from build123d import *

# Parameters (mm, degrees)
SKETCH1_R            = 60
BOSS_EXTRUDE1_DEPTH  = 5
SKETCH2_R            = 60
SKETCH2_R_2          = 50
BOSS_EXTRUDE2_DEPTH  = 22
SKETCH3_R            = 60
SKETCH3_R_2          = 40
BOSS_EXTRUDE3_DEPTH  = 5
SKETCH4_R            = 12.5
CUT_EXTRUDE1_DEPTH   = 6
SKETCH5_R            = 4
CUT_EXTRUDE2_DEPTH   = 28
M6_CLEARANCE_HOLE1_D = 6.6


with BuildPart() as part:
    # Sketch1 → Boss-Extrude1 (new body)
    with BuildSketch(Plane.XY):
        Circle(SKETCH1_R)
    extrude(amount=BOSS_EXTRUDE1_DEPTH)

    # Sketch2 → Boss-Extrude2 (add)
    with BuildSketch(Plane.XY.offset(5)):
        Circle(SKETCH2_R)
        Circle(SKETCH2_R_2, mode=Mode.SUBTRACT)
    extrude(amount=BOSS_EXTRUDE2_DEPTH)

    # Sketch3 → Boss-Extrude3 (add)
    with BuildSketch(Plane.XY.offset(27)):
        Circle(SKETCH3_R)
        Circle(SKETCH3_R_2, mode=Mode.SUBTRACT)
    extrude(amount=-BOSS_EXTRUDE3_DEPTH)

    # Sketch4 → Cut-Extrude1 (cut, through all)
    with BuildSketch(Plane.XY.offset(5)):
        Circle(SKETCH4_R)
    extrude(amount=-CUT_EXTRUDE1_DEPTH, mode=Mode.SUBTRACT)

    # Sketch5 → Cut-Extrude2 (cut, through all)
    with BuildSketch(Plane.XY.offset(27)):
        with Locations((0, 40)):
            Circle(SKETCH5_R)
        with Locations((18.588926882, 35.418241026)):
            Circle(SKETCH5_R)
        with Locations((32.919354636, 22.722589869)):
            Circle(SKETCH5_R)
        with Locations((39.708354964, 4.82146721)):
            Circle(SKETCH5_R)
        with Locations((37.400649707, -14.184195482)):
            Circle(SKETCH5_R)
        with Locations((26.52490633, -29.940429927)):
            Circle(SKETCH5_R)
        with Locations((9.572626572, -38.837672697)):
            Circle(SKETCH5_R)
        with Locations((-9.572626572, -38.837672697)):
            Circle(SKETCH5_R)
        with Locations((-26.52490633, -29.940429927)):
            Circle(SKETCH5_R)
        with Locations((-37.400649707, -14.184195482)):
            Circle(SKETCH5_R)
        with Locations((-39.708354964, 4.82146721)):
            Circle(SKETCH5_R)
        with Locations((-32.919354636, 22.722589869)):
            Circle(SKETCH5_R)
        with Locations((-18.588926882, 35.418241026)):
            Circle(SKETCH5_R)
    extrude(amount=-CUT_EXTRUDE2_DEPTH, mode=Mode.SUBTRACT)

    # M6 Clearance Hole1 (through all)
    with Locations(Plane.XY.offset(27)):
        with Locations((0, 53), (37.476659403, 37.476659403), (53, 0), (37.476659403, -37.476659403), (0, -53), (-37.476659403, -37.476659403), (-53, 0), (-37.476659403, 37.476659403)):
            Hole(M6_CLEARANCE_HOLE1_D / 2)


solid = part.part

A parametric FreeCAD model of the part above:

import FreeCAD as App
import Part
import Sketcher

V = App.Vector

doc = App.newDocument("Part")
body = doc.addObject("PartDesign::Body", "Body")

sketch1 = doc.addObject("Sketcher::SketchObject", "Sketch")
body.addObject(sketch1)
sketch1.AttachmentSupport = (doc.XY_Plane, [""])
sketch1.MapMode = "FlatFace"
sketch1.addGeometry(Part.Circle(V(0, 0, 0), V(0, 0, 1), 60), False)
sketch1.addConstraint([
    Sketcher.Constraint("Coincident", 0, 3, -1, 1),
    Sketcher.Constraint("Diameter", 0, 120.0),
])
pad1 = doc.addObject("PartDesign::Pad", "Pad")
body.addObject(pad1)
pad1.Profile = sketch1
pad1.Length = 5

sketch2 = doc.addObject("Sketcher::SketchObject", "Sketch001")
body.addObject(sketch2)
sketch2.AttachmentSupport = (doc.XY_Plane, [""])
sketch2.MapMode = "FlatFace"
sketch2.AttachmentOffset = App.Placement(V(0, 0, 5), App.Rotation())
sketch2.addGeometry([
    Part.Circle(V(0, 0, 0), V(0, 0, 1), 60),
    Part.Circle(V(0, 0, 0), V(0, 0, 1), 50),
], False)
sketch2.addConstraint([
    Sketcher.Constraint("Coincident", 0, 3, -1, 1),
    Sketcher.Constraint("Coincident", 1, 3, -1, 1),
    Sketcher.Constraint("Diameter", 0, 120.0),
    Sketcher.Constraint("Diameter", 1, 100.0),
])
pad2 = doc.addObject("PartDesign::Pad", "Pad001")
body.addObject(pad2)
pad2.Profile = sketch2
pad2.Length = 22

sketch3 = doc.addObject("Sketcher::SketchObject", "Sketch002")
body.addObject(sketch3)
sketch3.AttachmentSupport = (doc.XY_Plane, [""])
sketch3.MapMode = "FlatFace"
sketch3.AttachmentOffset = App.Placement(V(0, 0, 27), App.Rotation())
sketch3.addGeometry([
    Part.Circle(V(0, 0, 0), V(0, 0, 1), 60),
    Part.Circle(V(0, 0, 0), V(0, 0, 1), 40),
], False)
sketch3.addConstraint([
    Sketcher.Constraint("Coincident", 0, 3, -1, 1),
    Sketcher.Constraint("Coincident", 1, 3, -1, 1),
    Sketcher.Constraint("Diameter", 0, 120.0),
    Sketcher.Constraint("Diameter", 1, 80.0),
])
pad3 = doc.addObject("PartDesign::Pad", "Pad002")
body.addObject(pad3)
pad3.Profile = sketch3
pad3.Length = 5
pad3.Reversed = True

sketch4 = doc.addObject("Sketcher::SketchObject", "Sketch003")
body.addObject(sketch4)
sketch4.AttachmentSupport = (doc.XY_Plane, [""])
sketch4.MapMode = "FlatFace"
sketch4.AttachmentOffset = App.Placement(V(0, 0, 5), App.Rotation())
sketch4.addGeometry(Part.Circle(V(0, 0, 0), V(0, 0, 1), 12), False)
sketch4.addConstraint([
    Sketcher.Constraint("Coincident", 0, 3, -1, 1),
    Sketcher.Constraint("Diameter", 0, 25.0),
])
pocket1 = doc.addObject("PartDesign::Pocket", "Pocket")
body.addObject(pocket1)
pocket1.Profile = sketch4
pocket1.Type = "ThroughAll"

sketch5 = doc.addObject("Sketcher::SketchObject", "Sketch004")
body.addObject(sketch5)
sketch5.AttachmentSupport = (doc.XY_Plane, [""])
sketch5.MapMode = "FlatFace"
sketch5.AttachmentOffset = App.Placement(V(0, 0, 27), App.Rotation())
sketch5.addGeometry([
    Part.Circle(V(0, 40, 0), V(0, 0, 1), 4),
    Part.Circle(V(18.6, 35.4, 0), V(0, 0, 1), 4),
    Part.Circle(V(32.9, 22.7, 0), V(0, 0, 1), 4),
    Part.Circle(V(39.7, 4.8, 0), V(0, 0, 1), 4),
    Part.Circle(V(37.4, -14.2, 0), V(0, 0, 1), 4),
    Part.Circle(V(26.5, -29.9, 0), V(0, 0, 1), 4),
    Part.Circle(V(9.6, -38.8, 0), V(0, 0, 1), 4),
    Part.Circle(V(-9.6, -38.8, 0), V(0, 0, 1), 4),
    Part.Circle(V(-26.5, -29.9, 0), V(0, 0, 1), 4),
    Part.Circle(V(-37.4, -14.2, 0), V(0, 0, 1), 4),
    Part.Circle(V(-39.7, 4.8, 0), V(0, 0, 1), 4),
    Part.Circle(V(-32.9, 22.7, 0), V(0, 0, 1), 4),
    Part.Circle(V(-18.6, 35.4, 0), V(0, 0, 1), 4),
], False)
sketch5.addConstraint([
    Sketcher.Constraint("Equal", 0, 1),
    Sketcher.Constraint("Equal", 1, 2),
    Sketcher.Constraint("Equal", 2, 3),
    Sketcher.Constraint("Equal", 3, 4),
    Sketcher.Constraint("Equal", 4, 5),
    Sketcher.Constraint("Equal", 5, 6),
    Sketcher.Constraint("Equal", 6, 7),
    Sketcher.Constraint("Equal", 7, 8),
    Sketcher.Constraint("Equal", 8, 9),
    Sketcher.Constraint("Equal", 9, 10),
    Sketcher.Constraint("Equal", 10, 11),
    Sketcher.Constraint("Equal", 11, 12),
    Sketcher.Constraint("Symmetric", 6, 3, 7, 3, -2),
    Sketcher.Constraint("Symmetric", 5, 3, 8, 3, -2),
    Sketcher.Constraint("Symmetric", 4, 3, 9, 3, -2),
    Sketcher.Constraint("Symmetric", 3, 3, 10, 3, -2),
    Sketcher.Constraint("Symmetric", 2, 3, 11, 3, -2),
    Sketcher.Constraint("Symmetric", 1, 3, 12, 3, -2),
    Sketcher.Constraint("PointOnObject", 0, 3, -2),
    Sketcher.Constraint("Diameter", 0, 8.0),
    Sketcher.Constraint("DistanceY", -1, 1, 0, 3, 40.0),
    Sketcher.Constraint("DistanceX", 2, 3, 3, 3, 6.789),
    Sketcher.Constraint("DistanceX", 6, 3, 1, 3, 9.0163),
    Sketcher.Constraint("DistanceY", -1, 1, 1, 3, 35.418241),
    Sketcher.Constraint("DistanceY", -1, 1, 2, 3, 22.72259),
    Sketcher.Constraint("DistanceX", -1, 1, 4, 3, 37.40065),
    Sketcher.Constraint("DistanceY", 5, 3, -1, 1, 29.94043),
    Sketcher.Constraint("DistanceX", 1, 3, 3, 3, 21.119428),
    Sketcher.Constraint("DistanceX", 5, 3, 3, 3, 13.183449),
    Sketcher.Constraint("DistanceY", 6, 3, 3, 3, 43.65914),
    Sketcher.Constraint("DistanceX", 7, 3, 3, 3, 49.280982),
    Sketcher.Constraint("DistanceY", -1, 1, 3, 3, 4.821467),
    Sketcher.Constraint("DistanceY", 4, 3, -1, 1, 14.184195),
])
pocket2 = doc.addObject("PartDesign::Pocket", "Pocket001")
body.addObject(pocket2)
pocket2.Profile = sketch5
pocket2.Type = "ThroughAll"

sketch6 = doc.addObject("Sketcher::SketchObject", "Sketch005")
body.addObject(sketch6)
sketch6.AttachmentSupport = (doc.XY_Plane, [""])
sketch6.MapMode = "FlatFace"
sketch6.AttachmentOffset = App.Placement(V(0, 0, 27), App.Rotation())
sketch6.addGeometry([
    Part.Circle(V(0, 53, 0), V(0, 0, 1), 3.3),
    Part.Circle(V(37.5, 37.5, 0), V(0, 0, 1), 3.3),
    Part.Circle(V(53, 0, 0), V(0, 0, 1), 3.3),
    Part.Circle(V(37.5, -37.5, 0), V(0, 0, 1), 3.3),
    Part.Circle(V(0, -53, 0), V(0, 0, 1), 3.3),
    Part.Circle(V(-37.5, -37.5, 0), V(0, 0, 1), 3.3),
    Part.Circle(V(-53, 0, 0), V(0, 0, 1), 3.3),
    Part.Circle(V(-37.5, 37.5, 0), V(0, 0, 1), 3.3),
], False)
sketch6.addConstraint([
    Sketcher.Constraint("Equal", 0, 1),
    Sketcher.Constraint("Equal", 1, 2),
    Sketcher.Constraint("Equal", 2, 3),
    Sketcher.Constraint("Equal", 3, 4),
    Sketcher.Constraint("Equal", 4, 5),
    Sketcher.Constraint("Equal", 5, 6),
    Sketcher.Constraint("Equal", 6, 7),
    Sketcher.Constraint("Symmetric", 0, 3, 4, 3, -1, 1),
    Sketcher.Constraint("Symmetric", 1, 3, 5, 3, -1, 1),
    Sketcher.Constraint("Symmetric", 2, 3, 6, 3, -1, 1),
    Sketcher.Constraint("Symmetric", 3, 3, 7, 3, -1, 1),
    Sketcher.Constraint("Symmetric", 3, 3, 5, 3, -2),
    Sketcher.Constraint("PointOnObject", 0, 3, -2),
    Sketcher.Constraint("PointOnObject", 2, 3, -1),
    Sketcher.Constraint("Diameter", 0, 6.6),
    Sketcher.Constraint("DistanceY", -1, 1, 0, 3, 53.0),
    Sketcher.Constraint("DistanceX", -1, 1, 2, 3, 53.0),
    Sketcher.Constraint("DistanceX", -1, 1, 1, 3, 37.476659),
    Sketcher.Constraint("DistanceY", -1, 1, 1, 3, 37.476659),
])
doc.recompute()
hole = doc.addObject("PartDesign::Hole", "Hole")
body.addObject(hole)
hole.Profile = sketch6
hole.ThreadType = "None"
hole.Diameter = 6.6
hole.DepthType = "ThroughAll"

doc.recompute()
